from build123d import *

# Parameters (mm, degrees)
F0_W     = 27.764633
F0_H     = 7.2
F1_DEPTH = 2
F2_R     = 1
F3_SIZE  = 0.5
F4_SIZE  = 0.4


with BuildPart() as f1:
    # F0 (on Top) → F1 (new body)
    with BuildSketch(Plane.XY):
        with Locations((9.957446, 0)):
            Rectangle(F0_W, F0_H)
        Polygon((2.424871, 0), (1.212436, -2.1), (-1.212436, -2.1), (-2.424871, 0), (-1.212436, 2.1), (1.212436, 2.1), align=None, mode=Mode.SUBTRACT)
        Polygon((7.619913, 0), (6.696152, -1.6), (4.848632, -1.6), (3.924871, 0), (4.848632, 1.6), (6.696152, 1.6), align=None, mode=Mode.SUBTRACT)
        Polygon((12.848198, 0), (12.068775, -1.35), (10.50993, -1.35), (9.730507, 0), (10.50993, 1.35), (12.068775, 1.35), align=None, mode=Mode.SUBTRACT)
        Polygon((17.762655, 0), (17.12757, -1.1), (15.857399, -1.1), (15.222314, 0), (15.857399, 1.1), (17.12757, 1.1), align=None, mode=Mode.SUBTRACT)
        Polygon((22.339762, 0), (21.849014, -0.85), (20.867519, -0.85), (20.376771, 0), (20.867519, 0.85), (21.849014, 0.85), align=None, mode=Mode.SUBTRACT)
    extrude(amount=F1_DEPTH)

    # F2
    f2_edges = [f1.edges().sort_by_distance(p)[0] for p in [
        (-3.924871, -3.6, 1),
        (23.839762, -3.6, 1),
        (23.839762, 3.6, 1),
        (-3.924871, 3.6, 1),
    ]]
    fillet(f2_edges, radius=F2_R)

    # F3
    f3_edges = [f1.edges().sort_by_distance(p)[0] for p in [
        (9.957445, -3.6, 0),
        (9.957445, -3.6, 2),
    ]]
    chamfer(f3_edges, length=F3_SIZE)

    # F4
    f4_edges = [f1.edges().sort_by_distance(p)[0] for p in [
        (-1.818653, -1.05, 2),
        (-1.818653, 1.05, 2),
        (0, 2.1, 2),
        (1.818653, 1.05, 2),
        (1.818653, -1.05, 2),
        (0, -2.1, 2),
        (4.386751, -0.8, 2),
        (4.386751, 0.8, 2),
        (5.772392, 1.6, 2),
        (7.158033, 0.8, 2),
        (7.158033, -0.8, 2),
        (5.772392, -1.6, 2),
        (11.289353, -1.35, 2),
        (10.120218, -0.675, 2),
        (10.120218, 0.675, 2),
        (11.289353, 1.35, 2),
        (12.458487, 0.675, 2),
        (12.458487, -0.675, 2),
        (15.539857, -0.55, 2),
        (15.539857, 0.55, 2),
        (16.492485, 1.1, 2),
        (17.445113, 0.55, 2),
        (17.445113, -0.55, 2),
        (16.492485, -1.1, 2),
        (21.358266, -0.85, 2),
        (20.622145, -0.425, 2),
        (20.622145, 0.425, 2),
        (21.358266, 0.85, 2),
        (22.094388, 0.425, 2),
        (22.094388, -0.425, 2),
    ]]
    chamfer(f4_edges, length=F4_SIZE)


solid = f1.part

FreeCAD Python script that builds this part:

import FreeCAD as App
import Part
import Sketcher

V = App.Vector
Q = App.Units.Quantity


def edges_at(feature, points):
    """Names of the edges that pass closest to the given points."""
    edges = feature.Shape.Edges
    near = lambda p: min(range(len(edges)), key=lambda i: edges[i].distToShape(Part.Vertex(*p))[0])
    return sorted({f"Edge{near(p) + 1}" for p in points})


def add_polygon(sketch, points):
    """Adds a closed chain of lines whose ends are joined by coincident constraints."""
    first, n = sketch.GeometryCount, len(points)
    for a, b in zip(points, points[1:] + points[:1]):
        sketch.addGeometry(Part.LineSegment(App.Vector(*a, 0), App.Vector(*b, 0)), False)
    for i in range(n):
        sketch.addConstraint(Sketcher.Constraint("Coincident", first + i, 2, first + (i + 1) % n, 1))

doc = App.newDocument("Part")
body = doc.addObject("PartDesign::Body", "Body")

sketch1 = body.newObject("Sketcher::SketchObject", "Sketch")
sketch1.AttachmentSupport = (doc.getObject("XY_Plane"), [""])
sketch1.MapMode = "FlatFace"
add_polygon(sketch1, [(-3.9, 3.6), (-3.9, -3.6), (23.8, -3.6), (23.8, 3.6)])
add_polygon(sketch1, [(1.2, 2.1), (2.4, 0), (1.2, -2.1), (-1.2, -2.1), (-2.4, 0), (-1.2, 2.1)])
add_polygon(sketch1, [(6.7, 1.6), (7.6, 0), (6.7, -1.6), (4.8, -1.6), (3.9, 0), (4.8, 1.6)])
add_polygon(sketch1, [(12.1, 1.4), (12.8, 0), (12.1, -1.4), (10.5, -1.4), (9.7, 0), (10.5, 1.4)])
add_polygon(sketch1, [(17.1, 1.1), (17.8, 0), (17.1, -1.1), (15.9, -1.1), (15.2, 0), (15.9, 1.1)])
add_polygon(sketch1, [(21.8, 0.8), (22.3, 0), (21.8, -0.8), (20.9, -0.8), (20.4, 0), (20.9, 0.8)])
sketch1.addConstraint([
    Sketcher.Constraint("Vertical", 0),
    Sketcher.Constraint("Horizontal", 1),
    Sketcher.Constraint("Vertical", 2),
    Sketcher.Constraint("Horizontal", 3),
    Sketcher.Constraint("Horizontal", 6),
    Sketcher.Constraint("Horizontal", 9),
    Sketcher.Constraint("Horizontal", 12),
    Sketcher.Constraint("Horizontal", 15),
    Sketcher.Constraint("Horizontal", 18),
    Sketcher.Constraint("Horizontal", 21),
    Sketcher.Constraint("Horizontal", 24),
    Sketcher.Constraint("Horizontal", 27),
    Sketcher.Constraint("Horizontal", 30),
    Sketcher.Constraint("Horizontal", 33),
    Sketcher.Constraint("Symmetric", 4, 2, 7, 2, -1, 1),
    Sketcher.Constraint("Symmetric", 5, 2, 8, 2, -1, 1),
    Sketcher.Constraint("Symmetric", 12, 2, 14, 2, -1),
    Sketcher.Constraint("Symmetric", 18, 2, 20, 2, -1),
    Sketcher.Constraint("Symmetric", 24, 2, 26, 2, -1),
    Sketcher.Constraint("Symmetric", 30, 2, 32, 2, -1),
    Sketcher.Constraint("PointOnObject", 4, 2, -1),
    Sketcher.Constraint("PointOnObject", 10, 2, -1),
    Sketcher.Constraint("PointOnObject", 13, 2, -1),
    Sketcher.Constraint("PointOnObject", 16, 2, -1),
    Sketcher.Constraint("PointOnObject", 19, 2, -1),
    Sketcher.Constraint("PointOnObject", 22, 2, -1),
    Sketcher.Constraint("PointOnObject", 25, 2, -1),
    Sketcher.Constraint("PointOnObject", 28, 2, -1),
    Sketcher.Constraint("PointOnObject", 31, 2, -1),
    Sketcher.Constraint("Parallel", 4, 7),
    Sketcher.Constraint("Parallel", 7, 10),
    Sketcher.Constraint("Parallel", 8, 11),
    Sketcher.Constraint("Parallel", 10, 13),
    Sketcher.Constraint("Parallel", 11, 14),
    Sketcher.Constraint("Parallel", 13, 16),
    Sketcher.Constraint("Parallel", 14, 17),
    Sketcher.Constraint("Parallel", 16, 19),
    Sketcher.Constraint("Parallel", 19, 22),
    Sketcher.Constraint("Parallel", 20, 23),
    Sketcher.Constraint("Parallel", 22, 25),
    Sketcher.Constraint("Parallel", 25, 28),
    Sketcher.Constraint("Parallel", 26, 29),
    Sketcher.Constraint("Parallel", 28, 31),
    Sketcher.Constraint("Angle", 4, Q("-60.000012 deg")),
    Sketcher.Constraint("DistanceY", 0, 2, 0, 1, 7.2),
    Sketcher.Constraint("DistanceY", 0, 2, -1, 1, 3.6),
    Sketcher.Constraint("DistanceY", 5, 2, -1, 1, 2.1),
    Sketcher.Constraint("DistanceY", 11, 2, -1, 1, 1.6),
    Sketcher.Constraint("DistanceY", 23, 2, -1, 1, 1.1),
    Sketcher.Constraint("DistanceX", 0, 2, 7, 2, 1.499999),
    Sketcher.Constraint("DistanceX", 4, 2, 13, 2, 1.5),
    Sketcher.Constraint("DistanceY", 18, 2, 20, 2, 2.7),
    Sketcher.Constraint("DistanceX", 28, 2, 1, 2, 1.5),
    Sketcher.Constraint("DistanceY", 30, 2, 32, 2, 1.7),
    Sketcher.Constraint("DistanceX", 12, 2, 12, 1, 1.84752),
    Sketcher.Constraint("DistanceX", 24, 2, 24, 1, 1.270171),
    Sketcher.Constraint("DistanceX", -1, 1, 24, 2, 15.857399),
    Sketcher.Constraint("DistanceX", 6, 2, 1, 2, 25.052198),
    Sketcher.Constraint("DistanceX", 16, 2, 24, 2, 3.009201),
    Sketcher.Constraint("DistanceX", 23, 2, 31, 2, 3.249201),
    Sketcher.Constraint("DistanceX", 6, 2, 6, 1, 2.424872),
    Sketcher.Constraint("DistanceX", 18, 2, 18, 1, 1.558845),
])
pad1 = body.newObject("PartDesign::Pad", "Pad")
pad1.Profile = sketch1
pad1.Length = 2
doc.recompute()

fillet = body.newObject("PartDesign::Fillet", "Fillet")
fillet.Base = (pad1, edges_at(pad1, [
    (-3.925, -3.6, 1),
    (23.84, -3.6, 1),
    (23.84, 3.6, 1),
    (-3.925, 3.6, 1),
]))
fillet.Radius = 1
doc.recompute()

chamfer = body.newObject("PartDesign::Chamfer", "Chamfer")
chamfer.Base = (fillet, edges_at(fillet, [(9.957, -3.6, 0), (9.957, -3.6, 2)]))
chamfer.Size = 0.5
doc.recompute()

chamfer2 = body.newObject("PartDesign::Chamfer", "Chamfer001")
chamfer2.Base = (chamfer, edges_at(chamfer, [
    (-1.819, -1.05, 2),
    (-1.819, 1.05, 2),
    (0, 2.1, 2),
    (1.819, 1.05, 2),
    (1.819, -1.05, 2),
    (0, -2.1, 2),
    (4.387, -0.8, 2),
    (4.387, 0.8, 2),
    (5.772, 1.6, 2),
    (7.158, 0.8, 2),
    (7.158, -0.8, 2),
    (5.772, -1.6, 2),
    (11.289, -1.35, 2),
    (10.12, -0.675, 2),
    (10.12, 0.675, 2),
    (11.289, 1.35, 2),
    (12.458, 0.675, 2),
    (12.458, -0.675, 2),
    (15.54, -0.55, 2),
    (15.54, 0.55, 2),
    (16.492, 1.1, 2),
    (17.445, 0.55, 2),
    (17.445, -0.55, 2),
    (16.492, -1.1, 2),
    (21.358, -0.85, 2),
    (20.622, -0.425, 2),
    (20.622, 0.425, 2),
    (21.358, 0.85, 2),
    (22.094, 0.425, 2),
    (22.094, -0.425, 2),
]))
chamfer2.Size = 0.4

doc.recompute()
